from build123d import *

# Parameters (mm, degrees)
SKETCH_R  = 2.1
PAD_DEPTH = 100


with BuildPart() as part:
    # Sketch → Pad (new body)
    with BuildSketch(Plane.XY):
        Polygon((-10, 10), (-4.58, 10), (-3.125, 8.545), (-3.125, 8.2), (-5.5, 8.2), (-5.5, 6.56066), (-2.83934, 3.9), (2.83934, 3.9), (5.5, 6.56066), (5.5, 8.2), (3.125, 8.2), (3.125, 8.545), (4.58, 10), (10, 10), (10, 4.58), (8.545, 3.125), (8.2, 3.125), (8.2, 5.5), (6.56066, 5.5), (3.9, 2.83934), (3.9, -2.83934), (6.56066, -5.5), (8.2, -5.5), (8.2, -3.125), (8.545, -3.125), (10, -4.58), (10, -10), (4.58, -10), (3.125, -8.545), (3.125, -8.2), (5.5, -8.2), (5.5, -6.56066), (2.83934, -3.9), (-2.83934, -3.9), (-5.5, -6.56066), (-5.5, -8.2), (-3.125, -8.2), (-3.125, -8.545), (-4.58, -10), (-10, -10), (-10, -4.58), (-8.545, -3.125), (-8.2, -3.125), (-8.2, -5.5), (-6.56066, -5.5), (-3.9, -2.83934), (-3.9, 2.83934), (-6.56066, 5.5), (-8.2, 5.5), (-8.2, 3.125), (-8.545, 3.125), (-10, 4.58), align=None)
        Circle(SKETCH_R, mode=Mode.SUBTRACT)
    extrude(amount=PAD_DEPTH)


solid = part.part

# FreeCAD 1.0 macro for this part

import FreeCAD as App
import Part
import Sketcher
from FreeCAD import Vector
Q = App.Units.Quantity

doc = App.newDocument("Part")
body = doc.addObject("PartDesign::Body", "Body")

# Sketch on XY plane
sketch1 = body.newObject("Sketcher::SketchObject", "Sketch")
sketch1.AttachmentSupport = (doc.getObject("XY_Plane"), [""])
sketch1.MapMode = "FlatFace"
sketch1.addGeometry(Part.LineSegment(Vector(-4.58, 10, 0), Vector(-10, 10, 0)), False)
sketch1.addGeometry(Part.LineSegment(Vector(-10, 10, 0), Vector(-10, 4.58, 0)), False)
sketch1.addGeometry(Part.LineSegment(Vector(-10, 4.58, 0), Vector(-8.54, 3.12, 0)), False)
sketch1.addGeometry(Part.LineSegment(Vector(-8.54, 3.12, 0), Vector(-8.2, 3.12, 0)), False)
sketch1.addGeometry(Part.LineSegment(Vector(-8.2, 3.12, 0), Vector(-8.2, 5.5, 0)), False)
sketch1.addGeometry(Part.LineSegment(Vector(-8.2, 5.5, 0), Vector(-6.56, 5.5, 0)), False)
sketch1.addGeometry(Part.LineSegment(Vector(-6.56, 5.5, 0), Vector(-3.9, 2.84, 0)), False)
sketch1.addGeometry(Part.LineSegment(Vector(-3.9, 2.84, 0), Vector(-3.9, -2.84, 0)), False)
sketch1.addGeometry(Part.LineSegment(Vector(-3.9, -2.84, 0), Vector(-6.56, -5.5, 0)), False)
sketch1.addGeometry(Part.LineSegment(Vector(-6.56, -5.5, 0), Vector(-8.2, -5.5, 0)), False)
sketch1.addGeometry(Part.LineSegment(Vector(-8.2, -5.5, 0), Vector(-8.2, -3.12, 0)), False)
sketch1.addGeometry(Part.LineSegment(Vector(-8.2, -3.12, 0), Vector(-8.54, -3.12, 0)), False)
sketch1.addGeometry(Part.LineSegment(Vector(-8.54, -3.12, 0), Vector(-10, -4.58, 0)), False)
sketch1.addGeometry(Part.LineSegment(Vector(-10, -4.58, 0), Vector(-10, -10, 0)), False)
sketch1.addGeometry(Part.LineSegment(Vector(-10, -10, 0), Vector(-4.58, -10, 0)), False)
sketch1.addGeometry(Part.LineSegment(Vector(-4.58, -10, 0), Vector(-3.12, -8.54, 0)), False)
sketch1.addGeometry(Part.LineSegment(Vector(-3.12, -8.54, 0), Vector(-3.12, -8.2, 0)), False)
sketch1.addGeometry(Part.LineSegment(Vector(-3.12, -8.2, 0), Vector(-5.5, -8.2, 0)), False)
sketch1.addGeometry(Part.LineSegment(Vector(-5.5, -8.2, 0), Vector(-5.5, -6.56, 0)), False)
sketch1.addGeometry(Part.LineSegment(Vector(-5.5, -6.56, 0), Vector(-2.84, -3.9, 0)), False)
sketch1.addGeometry(Part.LineSegment(Vector(-2.84, -3.9, 0), Vector(2.84, -3.9, 0)), False)
sketch1.addGeometry(Part.LineSegment(Vector(2.84, -3.9, 0), Vector(5.5, -6.56, 0)), False)
sketch1.addGeometry(Part.LineSegment(Vector(5.5, -6.56, 0), Vector(5.5, -8.2, 0)), False)
sketch1.addGeometry(Part.LineSegment(Vector(5.5, -8.2, 0), Vector(3.12, -8.2, 0)), False)
sketch1.addGeometry(Part.LineSegment(Vector(3.12, -8.2, 0), Vector(3.12, -8.54, 0)), False)
sketch1.addGeometry(Part.LineSegment(Vector(3.12, -8.54, 0), Vector(4.58, -10, 0)), False)
sketch1.addGeometry(Part.LineSegment(Vector(4.58, -10, 0), Vector(10, -10, 0)), False)
sketch1.addGeometry(Part.LineSegment(Vector(10, -10, 0), Vector(10, -4.58, 0)), False)
sketch1.addGeometry(Part.LineSegment(Vector(10, -4.58, 0), Vector(8.54, -3.12, 0)), False)
sketch1.addGeometry(Part.LineSegment(Vector(8.54, -3.12, 0), Vector(8.2, -3.12, 0)), False)
sketch1.addGeometry(Part.LineSegment(Vector(8.2, -3.12, 0), Vector(8.2, -5.5, 0)), False)
sketch1.addGeometry(Part.LineSegment(Vector(8.2, -5.5, 0), Vector(6.56, -5.5, 0)), False)
sketch1.addGeometry(Part.LineSegment(Vector(6.56, -5.5, 0), Vector(3.9, -2.84, 0)), False)
sketch1.addGeometry(Part.LineSegment(Vector(3.9, -2.84, 0), Vector(3.9, 2.84, 0)), False)
sketch1.addGeometry(Part.LineSegment(Vector(3.9, 2.84, 0), Vector(6.56, 5.5, 0)), False)
sketch1.addGeometry(Part.LineSegment(Vector(6.56, 5.5, 0), Vector(8.2, 5.5, 0)), False)
sketch1.addGeometry(Part.LineSegment(Vector(8.2, 5.5, 0), Vector(8.2, 3.12, 0)), False)
sketch1.addGeometry(Part.LineSegment(Vector(8.2, 3.12, 0), Vector(8.54, 3.12, 0)), False)
sketch1.addGeometry(Part.LineSegment(Vector(8.54, 3.12, 0), Vector(10, 4.58, 0)), False)
sketch1.addGeometry(Part.LineSegment(Vector(10, 4.58, 0), Vector(10, 10, 0)), False)
sketch1.addGeometry(Part.LineSegment(Vector(10, 10, 0), Vector(4.58, 10, 0)), False)
sketch1.addGeometry(Part.LineSegment(Vector(4.58, 10, 0), Vector(3.12, 8.54, 0)), False)
sketch1.addGeometry(Part.LineSegment(Vector(3.12, 8.54, 0), Vector(3.12, 8.2, 0)), False)
sketch1.addGeometry(Part.LineSegment(Vector(3.12, 8.2, 0), Vector(5.5, 8.2, 0)), False)
sketch1.addGeometry(Part.LineSegment(Vector(5.5, 8.2, 0), Vector(5.5, 6.56, 0)), False)
sketch1.addGeometry(Part.LineSegment(Vector(5.5, 6.56, 0), Vector(2.84, 3.9, 0)), False)
sketch1.addGeometry(Part.LineSegment(Vector(2.84, 3.9, 0), Vector(-2.84, 3.9, 0)), False)
sketch1.addGeometry(Part.LineSegment(Vector(-2.84, 3.9, 0), Vector(-5.5, 6.56, 0)), False)
sketch1.addGeometry(Part.LineSegment(Vector(-5.5, 6.56, 0), Vector(-5.5, 8.2, 0)), False)
sketch1.addGeometry(Part.LineSegment(Vector(-5.5, 8.2, 0), Vector(-3.12, 8.2, 0)), False)
sketch1.addGeometry(Part.LineSegment(Vector(-3.12, 8.2, 0), Vector(-3.12, 8.54, 0)), False)
sketch1.addGeometry(Part.LineSegment(Vector(-3.12, 8.54, 0), Vector(-4.58, 10, 0)), False)
sketch1.addGeometry(Part.Circle(Vector(0, 0, 0), Vector(0, 0, 1), 2.1), False)
sketch1.addConstraint(Sketcher.Constraint("Coincident", 0, 2, 1, 1))
sketch1.addConstraint(Sketcher.Constraint("Coincident", 1, 2, 2, 1))
sketch1.addConstraint(Sketcher.Constraint("Coincident", 2, 2, 3, 1))
sketch1.addConstraint(Sketcher.Constraint("Coincident", 3, 2, 4, 1))
sketch1.addConstraint(Sketcher.Constraint("Coincident", 4, 2, 5, 1))
sketch1.addConstraint(Sketcher.Constraint("Coincident", 5, 2, 6, 1))
sketch1.addConstraint(Sketcher.Constraint("Coincident", 6, 2, 7, 1))
sketch1.addConstraint(Sketcher.Constraint("Coincident", 7, 2, 8, 1))
sketch1.addConstraint(Sketcher.Constraint("Coincident", 8, 2, 9, 1))
sketch1.addConstraint(Sketcher.Constraint("Coincident", 9, 2, 10, 1))
sketch1.addConstraint(Sketcher.Constraint("Coincident", 10, 2, 11, 1))
sketch1.addConstraint(Sketcher.Constraint("Coincident", 11, 2, 12, 1))
sketch1.addConstraint(Sketcher.Constraint("Coincident", 12, 2, 13, 1))
sketch1.addConstraint(Sketcher.Constraint("Coincident", 13, 2, 14, 1))
sketch1.addConstraint(Sketcher.Constraint("Coincident", 14, 2, 15, 1))
sketch1.addConstraint(Sketcher.Constraint("Coincident", 15, 2, 16, 1))
sketch1.addConstraint(Sketcher.Constraint("Coincident", 16, 2, 17, 1))
sketch1.addConstraint(Sketcher.Constraint("Coincident", 17, 2, 18, 1))
sketch1.addConstraint(Sketcher.Constraint("Coincident", 18, 2, 19, 1))
sketch1.addConstraint(Sketcher.Constraint("Coincident", 19, 2, 20, 1))
sketch1.addConstraint(Sketcher.Constraint("Coincident", 20, 2, 21, 1))
sketch1.addConstraint(Sketcher.Constraint("Coincident", 21, 2, 22, 1))
sketch1.addConstraint(Sketcher.Constraint("Coincident", 22, 2, 23, 1))
sketch1.addConstraint(Sketcher.Constraint("Coincident", 23, 2, 24, 1))
sketch1.addConstraint(Sketcher.Constraint("Coincident", 24, 2, 25, 1))
sketch1.addConstraint(Sketcher.Constraint("Coincident", 25, 2, 26, 1))
sketch1.addConstraint(Sketcher.Constraint("Coincident", 26, 2, 27, 1))
sketch1.addConstraint(Sketcher.Constraint("Coincident", 27, 2, 28, 1))
sketch1.addConstraint(Sketcher.Constraint("Coincident", 28, 2, 29, 1))
sketch1.addConstraint(Sketcher.Constraint("Coincident", 29, 2, 30, 1))
sketch1.addConstraint(Sketcher.Constraint("Coincident", 30, 2, 31, 1))
sketch1.addConstraint(Sketcher.Constraint("Coincident", 31, 2, 32, 1))
sketch1.addConstraint(Sketcher.Constraint("Coincident", 32, 2, 33, 1))
sketch1.addConstraint(Sketcher.Constraint("Coincident", 33, 2, 34, 1))
sketch1.addConstraint(Sketcher.Constraint("Coincident", 34, 2, 35, 1))
sketch1.addConstraint(Sketcher.Constraint("Coincident", 35, 2, 36, 1))
sketch1.addConstraint(Sketcher.Constraint("Coincident", 36, 2, 37, 1))
sketch1.addConstraint(Sketcher.Constraint("Coincident", 37, 2, 38, 1))
sketch1.addConstraint(Sketcher.Constraint("Coincident", 38, 2, 39, 1))
sketch1.addConstraint(Sketcher.Constraint("Coincident", 39, 2, 40, 1))
sketch1.addConstraint(Sketcher.Constraint("Coincident", 40, 2, 41, 1))
sketch1.addConstraint(Sketcher.Constraint("Coincident", 41, 2, 42, 1))
sketch1.addConstraint(Sketcher.Constraint("Coincident", 42, 2, 43, 1))
sketch1.addConstraint(Sketcher.Constraint("Coincident", 43, 2, 44, 1))
sketch1.addConstraint(Sketcher.Constraint("Coincident", 44, 2, 45, 1))
sketch1.addConstraint(Sketcher.Constraint("Coincident", 45, 2, 46, 1))
sketch1.addConstraint(Sketcher.Constraint("Coincident", 46, 2, 47, 1))
sketch1.addConstraint(Sketcher.Constraint("Coincident", 47, 2, 48, 1))
sketch1.addConstraint(Sketcher.Constraint("Coincident", 48, 2, 49, 1))
sketch1.addConstraint(Sketcher.Constraint("Coincident", 49, 2, 50, 1))
sketch1.addConstraint(Sketcher.Constraint("Coincident", 50, 2, 51, 1))
sketch1.addConstraint(Sketcher.Constraint("Coincident", 51, 2, 0, 1))
sketch1.addConstraint(Sketcher.Constraint("Horizontal", 0))
sketch1.addConstraint(Sketcher.Constraint("Vertical", 1))
sketch1.addConstraint(Sketcher.Constraint("Horizontal", 3))
sketch1.addConstraint(Sketcher.Constraint("Vertical", 4))
sketch1.addConstraint(Sketcher.Constraint("Horizontal", 5))
sketch1.addConstraint(Sketcher.Constraint("Vertical", 7))
sketch1.addConstraint(Sketcher.Constraint("Horizontal", 9))
sketch1.addConstraint(Sketcher.Constraint("Vertical", 10))
sketch1.addConstraint(Sketcher.Constraint("Horizontal", 11))
sketch1.addConstraint(Sketcher.Constraint("Vertical", 13))
sketch1.addConstraint(Sketcher.Constraint("Horizontal", 14))
sketch1.addConstraint(Sketcher.Constraint("Vertical", 16))
sketch1.addConstraint(Sketcher.Constraint("Horizontal", 17))
sketch1.addConstraint(Sketcher.Constraint("Vertical", 18))
sketch1.addConstraint(Sketcher.Constraint("Horizontal", 20))
sketch1.addConstraint(Sketcher.Constraint("Vertical", 22))
sketch1.addConstraint(Sketcher.Constraint("Horizontal", 23))
sketch1.addConstraint(Sketcher.Constraint("Vertical", 24))
sketch1.addConstraint(Sketcher.Constraint("Horizontal", 26))
sketch1.addConstraint(Sketcher.Constraint("Vertical", 27))
sketch1.addConstraint(Sketcher.Constraint("Horizontal", 29))
sketch1.addConstraint(Sketcher.Constraint("Vertical", 30))
sketch1.addConstraint(Sketcher.Constraint("Horizontal", 31))
sketch1.addConstraint(Sketcher.Constraint("Vertical", 33))
sketch1.addConstraint(Sketcher.Constraint("Horizontal", 35))
sketch1.addConstraint(Sketcher.Constraint("Vertical", 36))
sketch1.addConstraint(Sketcher.Constraint("Horizontal", 37))
sketch1.addConstraint(Sketcher.Constraint("Vertical", 39))
sketch1.addConstraint(Sketcher.Constraint("Horizontal", 40))
sketch1.addConstraint(Sketcher.Constraint("Vertical", 42))
sketch1.addConstraint(Sketcher.Constraint("Horizontal", 43))
sketch1.addConstraint(Sketcher.Constraint("Vertical", 44))
sketch1.addConstraint(Sketcher.Constraint("Horizontal", 46))
sketch1.addConstraint(Sketcher.Constraint("Vertical", 48))
sketch1.addConstraint(Sketcher.Constraint("Horizontal", 49))
sketch1.addConstraint(Sketcher.Constraint("Vertical", 50))
sketch1.addConstraint(Sketcher.Constraint("Coincident", 52, 3, -1, 1))
sketch1.addConstraint(Sketcher.Constraint("Symmetric", 0, 2, 26, 2, -1, 1))
sketch1.addConstraint(Sketcher.Constraint("Symmetric", 2, 2, 28, 2, -1, 1))
sketch1.addConstraint(Sketcher.Constraint("Symmetric", 4, 2, 30, 2, -1, 1))
sketch1.addConstraint(Sketcher.Constraint("Symmetric", 6, 2, 32, 2, -1, 1))
sketch1.addConstraint(Sketcher.Constraint("Symmetric", 8, 2, 34, 2, -1, 1))
sketch1.addConstraint(Sketcher.Constraint("Symmetric", 10, 2, 36, 2, -1, 1))
sketch1.addConstraint(Sketcher.Constraint("Symmetric", 12, 2, 38, 2, -1, 1))
sketch1.addConstraint(Sketcher.Constraint("Symmetric", 14, 2, 40, 2, -1, 1))
sketch1.addConstraint(Sketcher.Constraint("Symmetric", 15, 2, 41, 2, -1, 1))
sketch1.addConstraint(Sketcher.Constraint("Symmetric", 17, 2, 43, 2, -1, 1))
sketch1.addConstraint(Sketcher.Constraint("Symmetric", 19, 2, 45, 2, -1, 1))
sketch1.addConstraint(Sketcher.Constraint("Symmetric", 21, 2, 47, 2, -1, 1))
sketch1.addConstraint(Sketcher.Constraint("Symmetric", 23, 2, 49, 2, -1, 1))
sketch1.addConstraint(Sketcher.Constraint("Symmetric", 18, 2, 21, 2, -2))
sketch1.addConstraint(Sketcher.Constraint("Symmetric", 16, 2, 23, 2, -2))
sketch1.addConstraint(Sketcher.Constraint("Symmetric", 14, 2, 25, 2, -2))
sketch1.addConstraint(Sketcher.Constraint("Symmetric", 12, 2, 27, 2, -2))
sketch1.addConstraint(Sketcher.Constraint("Symmetric", 11, 2, 28, 2, -2))
sketch1.addConstraint(Sketcher.Constraint("Symmetric", 9, 2, 30, 2, -2))
sketch1.addConstraint(Sketcher.Constraint("Parallel", 2, 6))
sketch1.addConstraint(Sketcher.Constraint("Perpendicular", 6, 8))
sketch1.addConstraint(Sketcher.Constraint("Parallel", 8, 12))
sketch1.addConstraint(Sketcher.Constraint("Parallel", 12, 15))
sketch1.addConstraint(Sketcher.Constraint("Parallel", 15, 19))
sketch1.addConstraint(Sketcher.Constraint("Perpendicular", 19, 21))
sketch1.addConstraint(Sketcher.Constraint("Parallel", 21, 25))
sketch1.addConstraint(Sketcher.Constraint("Parallel", 25, 28))
sketch1.addConstraint(Sketcher.Constraint("Parallel", 28, 32))
sketch1.addConstraint(Sketcher.Constraint("Perpendicular", 32, 34))
sketch1.addConstraint(Sketcher.Constraint("Parallel", 34, 38))
sketch1.addConstraint(Sketcher.Constraint("Parallel", 41, 45))
sketch1.addConstraint(Sketcher.Constraint("Perpendicular", 45, 47))
sketch1.addConstraint(Sketcher.Constraint("Parallel", 47, 51))
sketch1.addConstraint(Sketcher.Constraint("Horizontal", 7, 2, 32, 2))
sketch1.addConstraint(Sketcher.Constraint("Horizontal", 41, 2, 50, 2))
sketch1.addConstraint(Sketcher.Constraint("Equal", 40, 1))
sketch1.addConstraint(Sketcher.Constraint("Equal", 49, 4))
sketch1.addConstraint(Sketcher.Constraint("Equal", 46, 7))
sketch1.addConstraint(Sketcher.Constraint("Equal", 37, 16))
sketch1.addConstraint(Sketcher.Constraint("Equal", 35, 18))
sketch1.addConstraint(Sketcher.Constraint("Equal", 12, 15))
sketch1.addConstraint(Sketcher.Constraint("Equal", 8, 19))
sketch1.addConstraint(Sketcher.Constraint("Diameter", 52, Q("4.2 mm")))
sketch1.addConstraint(Sketcher.Constraint("DistanceX", 0, 2, -1, 1, Q("10 mm")))
sketch1.addConstraint(Sketcher.Constraint("DistanceX", 0, 2, 0, 1, Q("5.42 mm")))
sketch1.addConstraint(Sketcher.Constraint("DistanceX", 3, 2, -1, 1, Q("8.2 mm")))
sketch1.addConstraint(Sketcher.Constraint("DistanceY", -1, 1, 4, 2, Q("5.5 mm")))
sketch1.addConstraint(Sketcher.Constraint("DistanceX", 6, 2, -1, 1, Q("3.9 mm")))
sketch1.addConstraint(Sketcher.Constraint("DistanceX", 3, 1, 3, 2, Q("0.345 mm")))
sketch1.addConstraint(Sketcher.Constraint("DistanceX", 5, 1, 5, 2, Q("1.63934 mm")))
pad1 = body.newObject("PartDesign::Pad", "Pad")
pad1.Profile = sketch1
pad1.Length = 100

doc.recompute()
